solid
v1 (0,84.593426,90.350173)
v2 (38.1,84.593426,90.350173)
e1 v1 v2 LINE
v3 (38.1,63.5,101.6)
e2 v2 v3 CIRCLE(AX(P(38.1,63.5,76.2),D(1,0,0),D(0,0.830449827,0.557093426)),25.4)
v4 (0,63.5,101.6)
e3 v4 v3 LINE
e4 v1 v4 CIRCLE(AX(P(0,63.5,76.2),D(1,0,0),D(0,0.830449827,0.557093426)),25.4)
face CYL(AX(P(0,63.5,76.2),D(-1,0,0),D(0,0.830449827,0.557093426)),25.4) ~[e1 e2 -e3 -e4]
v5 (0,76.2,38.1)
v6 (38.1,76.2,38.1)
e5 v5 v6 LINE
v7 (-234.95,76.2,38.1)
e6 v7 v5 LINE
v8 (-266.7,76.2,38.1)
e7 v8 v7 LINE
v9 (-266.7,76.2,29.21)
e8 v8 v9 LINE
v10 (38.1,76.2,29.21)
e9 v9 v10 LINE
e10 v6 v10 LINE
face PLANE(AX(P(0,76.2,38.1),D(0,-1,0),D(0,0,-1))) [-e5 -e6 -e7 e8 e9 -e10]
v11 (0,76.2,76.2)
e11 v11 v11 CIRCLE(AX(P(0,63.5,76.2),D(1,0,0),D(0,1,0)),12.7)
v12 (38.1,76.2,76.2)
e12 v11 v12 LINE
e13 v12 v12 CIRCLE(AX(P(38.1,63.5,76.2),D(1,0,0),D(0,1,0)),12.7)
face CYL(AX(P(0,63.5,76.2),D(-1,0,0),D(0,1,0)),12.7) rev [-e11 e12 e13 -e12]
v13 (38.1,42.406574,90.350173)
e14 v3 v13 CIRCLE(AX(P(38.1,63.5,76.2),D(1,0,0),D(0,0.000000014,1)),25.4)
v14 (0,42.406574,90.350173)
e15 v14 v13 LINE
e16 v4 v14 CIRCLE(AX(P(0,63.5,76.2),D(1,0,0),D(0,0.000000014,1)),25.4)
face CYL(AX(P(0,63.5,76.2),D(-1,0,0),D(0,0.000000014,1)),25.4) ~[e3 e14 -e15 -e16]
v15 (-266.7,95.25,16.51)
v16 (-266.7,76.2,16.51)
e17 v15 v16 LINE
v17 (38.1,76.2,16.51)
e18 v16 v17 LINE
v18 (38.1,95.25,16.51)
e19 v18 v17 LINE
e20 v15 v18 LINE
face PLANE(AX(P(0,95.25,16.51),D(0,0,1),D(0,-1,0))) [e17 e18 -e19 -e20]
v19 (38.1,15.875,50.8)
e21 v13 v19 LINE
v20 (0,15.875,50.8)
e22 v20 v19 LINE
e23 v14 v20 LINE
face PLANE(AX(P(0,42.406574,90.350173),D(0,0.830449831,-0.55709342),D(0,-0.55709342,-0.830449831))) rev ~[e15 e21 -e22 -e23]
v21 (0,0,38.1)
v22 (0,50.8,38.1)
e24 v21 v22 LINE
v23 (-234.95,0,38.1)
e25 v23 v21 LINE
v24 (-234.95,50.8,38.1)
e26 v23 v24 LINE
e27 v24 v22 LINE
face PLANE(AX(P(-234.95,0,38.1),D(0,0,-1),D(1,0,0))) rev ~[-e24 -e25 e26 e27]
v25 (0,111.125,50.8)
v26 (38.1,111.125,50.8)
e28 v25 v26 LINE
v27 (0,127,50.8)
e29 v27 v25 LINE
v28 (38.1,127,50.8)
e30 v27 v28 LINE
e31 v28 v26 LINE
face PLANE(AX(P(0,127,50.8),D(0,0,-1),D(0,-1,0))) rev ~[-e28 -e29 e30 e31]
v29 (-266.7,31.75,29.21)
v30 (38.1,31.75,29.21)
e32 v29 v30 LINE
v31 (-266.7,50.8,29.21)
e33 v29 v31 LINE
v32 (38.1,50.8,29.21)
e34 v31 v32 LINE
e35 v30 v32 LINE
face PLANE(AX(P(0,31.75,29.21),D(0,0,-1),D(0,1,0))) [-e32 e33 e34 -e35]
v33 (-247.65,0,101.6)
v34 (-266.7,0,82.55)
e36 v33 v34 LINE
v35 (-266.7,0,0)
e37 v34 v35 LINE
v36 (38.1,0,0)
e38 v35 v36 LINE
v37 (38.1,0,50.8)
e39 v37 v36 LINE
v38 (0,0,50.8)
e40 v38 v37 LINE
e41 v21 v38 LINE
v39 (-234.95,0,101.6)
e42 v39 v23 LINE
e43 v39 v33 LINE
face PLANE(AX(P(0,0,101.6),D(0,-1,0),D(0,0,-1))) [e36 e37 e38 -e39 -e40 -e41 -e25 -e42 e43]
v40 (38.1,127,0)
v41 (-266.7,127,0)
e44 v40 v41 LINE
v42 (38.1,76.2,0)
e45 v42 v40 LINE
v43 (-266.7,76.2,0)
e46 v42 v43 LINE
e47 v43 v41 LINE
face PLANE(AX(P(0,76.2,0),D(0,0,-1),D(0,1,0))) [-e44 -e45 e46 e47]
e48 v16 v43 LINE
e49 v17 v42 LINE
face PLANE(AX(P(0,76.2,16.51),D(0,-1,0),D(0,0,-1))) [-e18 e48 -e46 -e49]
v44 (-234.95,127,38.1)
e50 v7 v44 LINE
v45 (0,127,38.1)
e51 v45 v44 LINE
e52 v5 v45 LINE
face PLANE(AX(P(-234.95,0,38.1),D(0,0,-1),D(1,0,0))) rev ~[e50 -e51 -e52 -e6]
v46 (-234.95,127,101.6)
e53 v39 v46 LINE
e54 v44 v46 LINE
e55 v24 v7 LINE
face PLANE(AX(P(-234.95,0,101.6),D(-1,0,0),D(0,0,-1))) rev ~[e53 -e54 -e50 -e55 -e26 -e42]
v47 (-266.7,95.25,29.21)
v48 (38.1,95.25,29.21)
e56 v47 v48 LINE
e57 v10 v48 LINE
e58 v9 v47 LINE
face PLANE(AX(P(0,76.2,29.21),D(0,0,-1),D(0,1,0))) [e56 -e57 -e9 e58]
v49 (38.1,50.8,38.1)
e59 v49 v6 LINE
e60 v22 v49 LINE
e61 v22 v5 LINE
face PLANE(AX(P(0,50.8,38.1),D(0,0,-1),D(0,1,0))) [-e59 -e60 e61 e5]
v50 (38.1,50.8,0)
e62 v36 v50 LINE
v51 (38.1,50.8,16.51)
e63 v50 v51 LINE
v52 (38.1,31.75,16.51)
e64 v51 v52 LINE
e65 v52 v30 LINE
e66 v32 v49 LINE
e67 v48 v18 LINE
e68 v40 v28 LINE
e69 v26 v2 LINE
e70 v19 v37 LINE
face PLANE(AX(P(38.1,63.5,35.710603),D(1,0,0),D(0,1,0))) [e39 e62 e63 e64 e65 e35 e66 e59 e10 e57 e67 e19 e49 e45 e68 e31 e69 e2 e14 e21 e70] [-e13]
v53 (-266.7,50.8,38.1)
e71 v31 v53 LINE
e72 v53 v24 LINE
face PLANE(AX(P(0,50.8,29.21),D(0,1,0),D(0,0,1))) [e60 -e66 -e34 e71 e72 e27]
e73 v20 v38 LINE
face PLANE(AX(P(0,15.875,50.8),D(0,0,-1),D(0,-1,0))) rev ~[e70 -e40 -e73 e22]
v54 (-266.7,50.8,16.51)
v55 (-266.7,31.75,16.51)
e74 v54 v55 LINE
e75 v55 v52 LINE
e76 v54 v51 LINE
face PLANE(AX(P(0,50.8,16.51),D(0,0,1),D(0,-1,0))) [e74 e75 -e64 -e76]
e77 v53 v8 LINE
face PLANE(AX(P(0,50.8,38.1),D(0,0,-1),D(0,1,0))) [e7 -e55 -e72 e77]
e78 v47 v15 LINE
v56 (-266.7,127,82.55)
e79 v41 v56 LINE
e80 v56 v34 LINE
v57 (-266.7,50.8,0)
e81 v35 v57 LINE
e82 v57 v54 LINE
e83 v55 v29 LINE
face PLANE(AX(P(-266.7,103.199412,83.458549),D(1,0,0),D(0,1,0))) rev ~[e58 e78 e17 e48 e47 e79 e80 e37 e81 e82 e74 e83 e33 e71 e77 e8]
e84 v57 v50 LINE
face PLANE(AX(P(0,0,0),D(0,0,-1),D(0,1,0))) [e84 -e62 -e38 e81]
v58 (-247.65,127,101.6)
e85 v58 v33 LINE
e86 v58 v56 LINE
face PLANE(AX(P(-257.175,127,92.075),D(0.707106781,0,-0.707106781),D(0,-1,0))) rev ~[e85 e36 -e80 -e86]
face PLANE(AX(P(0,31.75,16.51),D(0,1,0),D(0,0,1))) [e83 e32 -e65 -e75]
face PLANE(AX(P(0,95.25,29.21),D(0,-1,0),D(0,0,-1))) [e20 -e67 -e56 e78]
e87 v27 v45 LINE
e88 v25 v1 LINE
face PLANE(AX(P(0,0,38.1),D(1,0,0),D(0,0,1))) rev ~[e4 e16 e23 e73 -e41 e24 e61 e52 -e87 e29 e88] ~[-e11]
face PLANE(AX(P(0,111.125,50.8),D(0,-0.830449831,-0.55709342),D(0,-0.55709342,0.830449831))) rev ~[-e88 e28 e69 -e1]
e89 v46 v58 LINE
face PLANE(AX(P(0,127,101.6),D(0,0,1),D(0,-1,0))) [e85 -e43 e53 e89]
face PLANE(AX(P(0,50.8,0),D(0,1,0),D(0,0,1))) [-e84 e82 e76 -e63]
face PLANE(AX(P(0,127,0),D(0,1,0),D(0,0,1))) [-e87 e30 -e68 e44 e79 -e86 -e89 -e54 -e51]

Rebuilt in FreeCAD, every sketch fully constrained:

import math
import FreeCAD as App
import Part
import Sketcher

V = App.Vector
Q = App.Units.Quantity


def edges_at(feature, points):
    """Names of the edges that pass closest to the given points."""
    edges = feature.Shape.Edges
    near = lambda p: min(range(len(edges)), key=lambda i: edges[i].distToShape(Part.Vertex(*p))[0])
    return sorted({f"Edge{near(p) + 1}" for p in points})

doc = App.newDocument("Part")
body = doc.addObject("PartDesign::Body", "Body")

sketch1 = body.newObject("Sketcher::SketchObject", "Sketch")
sketch1.AttachmentSupport = (doc.getObject("YZ_Plane"), [""])
sketch1.MapMode = "FlatFace"
sketch1.addGeometry(Part.LineSegment(V(0, 51, 0), V(0, 0, 0)), False)
sketch1.addGeometry(Part.LineSegment(V(0, 0, 0), V(51, 0, 0)), False)
sketch1.addGeometry(Part.LineSegment(V(51, 0, 0), V(51, 17, 0)), False)
sketch1.addGeometry(Part.LineSegment(V(51, 17, 0), V(32, 17, 0)), False)
sketch1.addGeometry(Part.LineSegment(V(32, 17, 0), V(32, 29, 0)), False)
sketch1.addGeometry(Part.LineSegment(V(32, 29, 0), V(51, 29, 0)), False)
sketch1.addGeometry(Part.LineSegment(V(51, 29, 0), V(51, 38, 0)), False)
sketch1.addGeometry(Part.LineSegment(V(51, 38, 0), V(76, 38, 0)), False)
sketch1.addGeometry(Part.LineSegment(V(76, 38, 0), V(76, 29, 0)), False)
sketch1.addGeometry(Part.LineSegment(V(76, 29, 0), V(95, 29, 0)), False)
sketch1.addGeometry(Part.LineSegment(V(95, 29, 0), V(95, 17, 0)), False)
sketch1.addGeometry(Part.LineSegment(V(95, 17, 0), V(76, 17, 0)), False)
sketch1.addGeometry(Part.LineSegment(V(76, 17, 0), V(76, 0, 0)), False)
sketch1.addGeometry(Part.LineSegment(V(76, 0, 0), V(127, 0, 0)), False)
sketch1.addGeometry(Part.LineSegment(V(127, 0, 0), V(127, 51, 0)), False)
sketch1.addGeometry(Part.LineSegment(V(127, 51, 0), V(111, 51, 0)), False)
sketch1.addGeometry(Part.LineSegment(V(111, 51, 0), V(85, 90, 0)), False)
sketch1.addGeometry(Part.ArcOfCircle(Part.Circle(V(64, 76, 0), V(0, 0, 1), 25), math.radians(34), math.radians(90)), False)
sketch1.addGeometry(Part.ArcOfCircle(Part.Circle(V(63, 76, 0), V(0, 0, 1), 25), math.radians(90), math.radians(146)), False)
sketch1.addGeometry(Part.LineSegment(V(42, 90, 0), V(16, 51, 0)), False)
sketch1.addGeometry(Part.LineSegment(V(16, 51, 0), V(0, 51, 0)), False)
sketch1.addGeometry(Part.Circle(V(64, 76, 0), V(0, 0, 1), 13), False)
sketch1.addConstraint(Sketcher.Constraint("Coincident", 0, 2, 1, 1))
sketch1.addConstraint(Sketcher.Constraint("Coincident", 1, 2, 2, 1))
sketch1.addConstraint(Sketcher.Constraint("Coincident", 2, 2, 3, 1))
sketch1.addConstraint(Sketcher.Constraint("Coincident", 3, 2, 4, 1))
sketch1.addConstraint(Sketcher.Constraint("Coincident", 4, 2, 5, 1))
sketch1.addConstraint(Sketcher.Constraint("Coincident", 5, 2, 6, 1))
sketch1.addConstraint(Sketcher.Constraint("Coincident", 6, 2, 7, 1))
sketch1.addConstraint(Sketcher.Constraint("Coincident", 7, 2, 8, 1))
sketch1.addConstraint(Sketcher.Constraint("Coincident", 8, 2, 9, 1))
sketch1.addConstraint(Sketcher.Constraint("Coincident", 9, 2, 10, 1))
sketch1.addConstraint(Sketcher.Constraint("Coincident", 10, 2, 11, 1))
sketch1.addConstraint(Sketcher.Constraint("Coincident", 11, 2, 12, 1))
sketch1.addConstraint(Sketcher.Constraint("Coincident", 12, 2, 13, 1))
sketch1.addConstraint(Sketcher.Constraint("Coincident", 13, 2, 14, 1))
sketch1.addConstraint(Sketcher.Constraint("Coincident", 14, 2, 15, 1))
sketch1.addConstraint(Sketcher.Constraint("Coincident", 15, 2, 16, 1))
sketch1.addConstraint(Sketcher.Constraint("Tangent", 16, 2, 17, 1))
sketch1.addConstraint(Sketcher.Constraint("Tangent", 17, 2, 18, 1))
sketch1.addConstraint(Sketcher.Constraint("Tangent", 18, 2, 19, 1))
sketch1.addConstraint(Sketcher.Constraint("Coincident", 19, 2, 20, 1))
sketch1.addConstraint(Sketcher.Constraint("Coincident", 20, 2, 0, 1))
sketch1.addConstraint(Sketcher.Constraint("Vertical", 0))
sketch1.addConstraint(Sketcher.Constraint("Horizontal", 1))
sketch1.addConstraint(Sketcher.Constraint("Vertical", 2))
sketch1.addConstraint(Sketcher.Constraint("Horizontal", 3))
sketch1.addConstraint(Sketcher.Constraint("Vertical", 4))
sketch1.addConstraint(Sketcher.Constraint("Horizontal", 5))
sketch1.addConstraint(Sketcher.Constraint("Vertical", 6))
sketch1.addConstraint(Sketcher.Constraint("Horizontal", 7))
sketch1.addConstraint(Sketcher.Constraint("Vertical", 8))
sketch1.addConstraint(Sketcher.Constraint("Horizontal", 9))
sketch1.addConstraint(Sketcher.Constraint("Vertical", 10))
sketch1.addConstraint(Sketcher.Constraint("Horizontal", 11))
sketch1.addConstraint(Sketcher.Constraint("Vertical", 12))
sketch1.addConstraint(Sketcher.Constraint("Horizontal", 13))
sketch1.addConstraint(Sketcher.Constraint("Vertical", 14))
sketch1.addConstraint(Sketcher.Constraint("Horizontal", 15))
sketch1.addConstraint(Sketcher.Constraint("Horizontal", 20))
sketch1.addConstraint(Sketcher.Constraint("Coincident", 0, 2, -1, 1))
sketch1.addConstraint(Sketcher.Constraint("Coincident", 21, 3, 17, 3))
sketch1.addConstraint(Sketcher.Constraint("Equal", 17, 18))
sketch1.addConstraint(Sketcher.Constraint("PointOnObject", 12, 2, -1))
sketch1.addConstraint(Sketcher.Constraint("Horizontal", 5, 2, 8, 2))
sketch1.addConstraint(Sketcher.Constraint("Horizontal", 3, 2, 10, 2))
sketch1.addConstraint(Sketcher.Constraint("Horizontal", 16, 2, 18, 2))
sketch1.addConstraint(Sketcher.Constraint("Horizontal", 15, 2, 19, 2))
sketch1.addConstraint(Sketcher.Constraint("Vertical", 2, 2, 5, 2))
sketch1.addConstraint(Sketcher.Constraint("Vertical", 8, 2, 11, 2))
sketch1.addConstraint(Sketcher.Constraint("Vertical", 21, 3, 17, 2))
sketch1.addConstraint(Sketcher.Constraint("Equal", 5, 9))
sketch1.addConstraint(Sketcher.Constraint("Equal", 1, 13))
sketch1.addConstraint(Sketcher.Constraint("Equal", 15, 20))
sketch1.addConstraint(Sketcher.Constraint("Equal", 13, 0))
sketch1.addConstraint(Sketcher.Constraint("Diameter", 21, Q("1 in")))
sketch1.addConstraint(Sketcher.Constraint("Radius", 17, Q("1 in")))
sketch1.addConstraint(Sketcher.Constraint("DistanceX", 1, 1, 1, 2, Q("2 in")))
sketch1.addConstraint(Sketcher.Constraint("DistanceX", 7, 1, 7, 2, Q("1 in")))
sketch1.addConstraint(Sketcher.Constraint("DistanceY", 4, 1, 4, 2, Q("0.5 in")))
sketch1.addConstraint(Sketcher.Constraint("DistanceY", -1, 1, 17, 3, Q("3 in")))
sketch1.addConstraint(Sketcher.Constraint("DistanceX", 3, 2, 3, 1, Q("0.75 in")))
sketch1.addConstraint(Sketcher.Constraint("DistanceY", 2, 1, 2, 2, Q("0.65 in")))
sketch1.addConstraint(Sketcher.Constraint("DistanceY", 6, 1, 6, 2, Q("0.35 in")))
sketch1.addConstraint(Sketcher.Constraint("DistanceX", 15, 2, 15, 1, Q("0.625 in")))
pad1 = body.newObject("PartDesign::Pad", "Pad")
pad1.Profile = sketch1
pad1.Length = Q("1.5 in")

sketch2 = body.newObject("Sketcher::SketchObject", "Sketch001")
sketch2.AttachmentSupport = (doc.getObject("YZ_Plane"), [""])
sketch2.MapMode = "FlatFace"
sketch2.addGeometry(Part.LineSegment(V(127, 102, 0), V(0, 102, 0)), False)
sketch2.addGeometry(Part.LineSegment(V(0, 102, 0), V(0, 0, 0)), False)
sketch2.addGeometry(Part.LineSegment(V(0, 0, 0), V(51, 0, 0)), False)
sketch2.addGeometry(Part.LineSegment(V(51, 0, 0), V(51, 17, 0)), False)
sketch2.addGeometry(Part.LineSegment(V(51, 17, 0), V(32, 17, 0)), False)
sketch2.addGeometry(Part.LineSegment(V(32, 17, 0), V(32, 29, 0)), False)
sketch2.addGeometry(Part.LineSegment(V(32, 29, 0), V(51, 29, 0)), False)
sketch2.addGeometry(Part.LineSegment(V(51, 29, 0), V(51, 38, 0)), False)
sketch2.addGeometry(Part.LineSegment(V(51, 38, 0), V(76, 38, 0)), False)
sketch2.addGeometry(Part.LineSegment(V(76, 38, 0), V(76, 29, 0)), False)
sketch2.addGeometry(Part.LineSegment(V(76, 29, 0), V(95, 29, 0)), False)
sketch2.addGeometry(Part.LineSegment(V(95, 29, 0), V(95, 17, 0)), False)
sketch2.addGeometry(Part.LineSegment(V(95, 17, 0), V(76, 17, 0)), False)
sketch2.addGeometry(Part.LineSegment(V(76, 17, 0), V(76, 0, 0)), False)
sketch2.addGeometry(Part.LineSegment(V(76, 0, 0), V(127, 0, 0)), False)
sketch2.addGeometry(Part.LineSegment(V(127, 0, 0), V(127, 102, 0)), False)
sketch2.addConstraint(Sketcher.Constraint("Coincident", 0, 2, 1, 1))
sketch2.addConstraint(Sketcher.Constraint("Coincident", 1, 2, 2, 1))
sketch2.addConstraint(Sketcher.Constraint("Coincident", 2, 2, 3, 1))
sketch2.addConstraint(Sketcher.Constraint("Coincident", 3, 2, 4, 1))
sketch2.addConstraint(Sketcher.Constraint("Coincident", 4, 2, 5, 1))
sketch2.addConstraint(Sketcher.Constraint("Coincident", 5, 2, 6, 1))
sketch2.addConstraint(Sketcher.Constraint("Coincident", 6, 2, 7, 1))
sketch2.addConstraint(Sketcher.Constraint("Coincident", 7, 2, 8, 1))
sketch2.addConstraint(Sketcher.Constraint("Coincident", 8, 2, 9, 1))
sketch2.addConstraint(Sketcher.Constraint("Coincident", 9, 2, 10, 1))
sketch2.addConstraint(Sketcher.Constraint("Coincident", 10, 2, 11, 1))
sketch2.addConstraint(Sketcher.Constraint("Coincident", 11, 2, 12, 1))
sketch2.addConstraint(Sketcher.Constraint("Coincident", 12, 2, 13, 1))
sketch2.addConstraint(Sketcher.Constraint("Coincident", 13, 2, 14, 1))
sketch2.addConstraint(Sketcher.Constraint("Coincident", 14, 2, 15, 1))
sketch2.addConstraint(Sketcher.Constraint("Coincident", 15, 2, 0, 1))
sketch2.addConstraint(Sketcher.Constraint("Horizontal", 0))
sketch2.addConstraint(Sketcher.Constraint("Vertical", 1))
sketch2.addConstraint(Sketcher.Constraint("Horizontal", 2))
sketch2.addConstraint(Sketcher.Constraint("Vertical", 3))
sketch2.addConstraint(Sketcher.Constraint("Horizontal", 4))
sketch2.addConstraint(Sketcher.Constraint("Vertical", 5))
sketch2.addConstraint(Sketcher.Constraint("Horizontal", 6))
sketch2.addConstraint(Sketcher.Constraint("Vertical", 7))
sketch2.addConstraint(Sketcher.Constraint("Horizontal", 8))
sketch2.addConstraint(Sketcher.Constraint("Vertical", 9))
sketch2.addConstraint(Sketcher.Constraint("Horizontal", 10))
sketch2.addConstraint(Sketcher.Constraint("Vertical", 11))
sketch2.addConstraint(Sketcher.Constraint("Horizontal", 12))
sketch2.addConstraint(Sketcher.Constraint("Vertical", 13))
sketch2.addConstraint(Sketcher.Constraint("Horizontal", 14))
sketch2.addConstraint(Sketcher.Constraint("Vertical", 15))
sketch2.addConstraint(Sketcher.Constraint("Coincident", 1, 2, -1, 1))
sketch2.addConstraint(Sketcher.Constraint("PointOnObject", 13, 2, -1))
sketch2.addConstraint(Sketcher.Constraint("Horizontal", 6, 2, 9, 2))
sketch2.addConstraint(Sketcher.Constraint("Horizontal", 4, 2, 11, 2))
sketch2.addConstraint(Sketcher.Constraint("Vertical", 3, 2, 6, 2))
sketch2.addConstraint(Sketcher.Constraint("Vertical", 9, 2, 12, 2))
sketch2.addConstraint(Sketcher.Constraint("Equal", 6, 10))
sketch2.addConstraint(Sketcher.Constraint("Equal", 2, 14))
sketch2.addConstraint(Sketcher.Constraint("DistanceX", 0, 2, 0, 1, Q("5 in")))
sketch2.addConstraint(Sketcher.Constraint("DistanceX", 2, 1, 2, 2, Q("2 in")))
sketch2.addConstraint(Sketcher.Constraint("DistanceY", 1, 2, 1, 1, Q("4 in")))
sketch2.addConstraint(Sketcher.Constraint("DistanceY", 5, 1, 5, 2, Q("0.5 in")))
sketch2.addConstraint(Sketcher.Constraint("DistanceX", 4, 2, 4, 1, Q("0.75 in")))
sketch2.addConstraint(Sketcher.Constraint("DistanceY", 3, 1, 3, 2, Q("0.65 in")))
sketch2.addConstraint(Sketcher.Constraint("DistanceY", 7, 1, 7, 2, Q("0.35 in")))
pad2 = body.newObject("PartDesign::Pad", "Pad001")
pad2.Profile = sketch2
pad2.Length = Q("10.5 in")
pad2.Reversed = True
doc.recompute()

chamfer = body.newObject("PartDesign::Chamfer", "Chamfer")
chamfer.Base = (pad2, edges_at(pad2, [(-266.7, 63.5, 101.6)]))
chamfer.ChamferType = "Two distances"
chamfer.Size = Q("0.75 in")
chamfer.Size2 = Q("0.75 in")

sketch3 = body.newObject("Sketcher::SketchObject", "Sketch002")
sketch3.AttachmentSupport = (doc.getObject("XZ_Plane"), [""])
sketch3.MapMode = "FlatFace"
sketch3.addGeometry(Part.LineSegment(V(0, 102, 0), V(-235, 102, 0)), False)
sketch3.addGeometry(Part.LineSegment(V(-235, 102, 0), V(-235, 38, 0)), False)
sketch3.addGeometry(Part.LineSegment(V(-235, 38, 0), V(0, 38, 0)), False)
sketch3.addGeometry(Part.LineSegment(V(0, 38, 0), V(0, 102, 0)), False)
sketch3.addConstraint(Sketcher.Constraint("Coincident", 0, 2, 1, 1))
sketch3.addConstraint(Sketcher.Constraint("Coincident", 1, 2, 2, 1))
sketch3.addConstraint(Sketcher.Constraint("Coincident", 2, 2, 3, 1))
sketch3.addConstraint(Sketcher.Constraint("Coincident", 3, 2, 0, 1))
sketch3.addConstraint(Sketcher.Constraint("Horizontal", 0))
sketch3.addConstraint(Sketcher.Constraint("Vertical", 1))
sketch3.addConstraint(Sketcher.Constraint("Horizontal", 2))
sketch3.addConstraint(Sketcher.Constraint("Vertical", 3))
sketch3.addConstraint(Sketcher.Constraint("PointOnObject", 2, 2, -2))
sketch3.addConstraint(Sketcher.Constraint("DistanceY", 1, 2, 1, 1, Q("2.5 in")))
sketch3.addConstraint(Sketcher.Constraint("DistanceY", -1, 1, 0, 2, Q("4 in")))
sketch3.addConstraint(Sketcher.Constraint("DistanceX", 0, 2, 0, 1, Q("9.25 in")))
pocket1 = body.newObject("PartDesign::Pocket", "Pocket")
pocket1.Profile = sketch3
pocket1.Type = "ThroughAll"

doc.recompute()
